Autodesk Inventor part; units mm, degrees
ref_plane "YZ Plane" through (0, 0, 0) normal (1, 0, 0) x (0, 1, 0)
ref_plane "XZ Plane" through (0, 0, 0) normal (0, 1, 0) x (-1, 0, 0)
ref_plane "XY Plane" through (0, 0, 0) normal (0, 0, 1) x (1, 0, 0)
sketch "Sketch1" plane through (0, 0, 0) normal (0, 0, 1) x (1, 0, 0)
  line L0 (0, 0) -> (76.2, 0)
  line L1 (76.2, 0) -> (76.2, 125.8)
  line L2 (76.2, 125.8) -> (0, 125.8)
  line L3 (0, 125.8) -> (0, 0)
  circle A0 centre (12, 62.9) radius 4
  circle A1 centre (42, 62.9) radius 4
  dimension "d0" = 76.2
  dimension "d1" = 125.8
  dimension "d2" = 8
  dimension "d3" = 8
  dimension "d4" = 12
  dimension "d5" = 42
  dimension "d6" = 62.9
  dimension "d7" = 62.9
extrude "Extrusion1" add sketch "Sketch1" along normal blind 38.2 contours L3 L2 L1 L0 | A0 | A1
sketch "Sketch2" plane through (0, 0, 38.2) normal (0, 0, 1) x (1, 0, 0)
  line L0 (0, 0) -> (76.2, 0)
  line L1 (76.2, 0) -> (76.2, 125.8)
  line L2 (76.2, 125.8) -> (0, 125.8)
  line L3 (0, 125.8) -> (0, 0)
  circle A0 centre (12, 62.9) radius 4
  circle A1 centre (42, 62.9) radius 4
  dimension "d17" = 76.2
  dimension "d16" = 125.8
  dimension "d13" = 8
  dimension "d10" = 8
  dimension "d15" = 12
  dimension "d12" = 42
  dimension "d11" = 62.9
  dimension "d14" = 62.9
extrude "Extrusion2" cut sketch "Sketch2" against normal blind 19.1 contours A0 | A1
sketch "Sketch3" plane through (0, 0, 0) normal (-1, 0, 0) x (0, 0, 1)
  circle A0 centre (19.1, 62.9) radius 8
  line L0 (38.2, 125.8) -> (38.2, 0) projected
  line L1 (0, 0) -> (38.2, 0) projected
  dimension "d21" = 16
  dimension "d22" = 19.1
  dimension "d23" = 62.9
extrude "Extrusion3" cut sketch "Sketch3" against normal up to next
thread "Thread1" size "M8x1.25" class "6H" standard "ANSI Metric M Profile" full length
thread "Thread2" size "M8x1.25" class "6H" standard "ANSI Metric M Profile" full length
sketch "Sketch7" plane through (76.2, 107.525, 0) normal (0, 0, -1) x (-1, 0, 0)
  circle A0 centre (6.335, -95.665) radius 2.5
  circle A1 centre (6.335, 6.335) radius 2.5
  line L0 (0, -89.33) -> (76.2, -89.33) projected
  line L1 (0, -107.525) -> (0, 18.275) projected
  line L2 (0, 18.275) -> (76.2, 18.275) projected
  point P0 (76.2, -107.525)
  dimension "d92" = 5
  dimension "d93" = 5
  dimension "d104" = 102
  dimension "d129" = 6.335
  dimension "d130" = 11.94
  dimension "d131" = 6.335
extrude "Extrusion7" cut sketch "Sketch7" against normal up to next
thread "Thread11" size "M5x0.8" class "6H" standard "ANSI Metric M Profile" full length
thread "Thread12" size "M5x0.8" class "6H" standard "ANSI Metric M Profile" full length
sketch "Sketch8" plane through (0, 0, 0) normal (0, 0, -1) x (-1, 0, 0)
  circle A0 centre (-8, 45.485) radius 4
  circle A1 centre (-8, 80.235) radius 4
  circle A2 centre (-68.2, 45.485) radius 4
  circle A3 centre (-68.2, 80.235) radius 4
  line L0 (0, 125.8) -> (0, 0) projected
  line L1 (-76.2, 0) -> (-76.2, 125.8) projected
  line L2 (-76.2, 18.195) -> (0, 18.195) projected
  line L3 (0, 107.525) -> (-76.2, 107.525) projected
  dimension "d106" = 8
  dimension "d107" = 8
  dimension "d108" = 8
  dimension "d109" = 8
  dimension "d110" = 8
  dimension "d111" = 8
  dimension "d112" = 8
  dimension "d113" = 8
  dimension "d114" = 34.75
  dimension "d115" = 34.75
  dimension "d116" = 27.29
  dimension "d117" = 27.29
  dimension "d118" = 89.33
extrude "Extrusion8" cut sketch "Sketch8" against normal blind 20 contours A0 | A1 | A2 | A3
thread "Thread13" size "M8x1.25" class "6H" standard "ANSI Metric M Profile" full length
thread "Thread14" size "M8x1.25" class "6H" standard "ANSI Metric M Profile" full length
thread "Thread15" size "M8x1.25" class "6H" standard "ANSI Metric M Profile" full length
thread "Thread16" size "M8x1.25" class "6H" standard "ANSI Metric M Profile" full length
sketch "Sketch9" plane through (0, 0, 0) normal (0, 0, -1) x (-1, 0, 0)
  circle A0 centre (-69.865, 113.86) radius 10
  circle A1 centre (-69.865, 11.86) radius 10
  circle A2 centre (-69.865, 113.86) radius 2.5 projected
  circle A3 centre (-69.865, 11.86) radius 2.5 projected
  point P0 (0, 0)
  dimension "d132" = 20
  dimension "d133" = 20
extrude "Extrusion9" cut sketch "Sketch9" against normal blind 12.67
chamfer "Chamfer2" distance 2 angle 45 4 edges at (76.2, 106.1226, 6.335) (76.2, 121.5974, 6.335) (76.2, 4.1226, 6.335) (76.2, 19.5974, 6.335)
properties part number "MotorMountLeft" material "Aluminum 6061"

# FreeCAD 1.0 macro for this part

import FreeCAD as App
import Part
import Sketcher

V = App.Vector
Q = App.Units.Quantity


def edges_at(feature, points):
    """Names of the edges that pass closest to the given points."""
    edges = feature.Shape.Edges
    near = lambda p: min(range(len(edges)), key=lambda i: edges[i].distToShape(Part.Vertex(*p))[0])
    return sorted({f"Edge{near(p) + 1}" for p in points})


def add_polygon(sketch, points):
    """Adds a closed chain of lines whose ends are joined by coincident constraints."""
    first, n = sketch.GeometryCount, len(points)
    for a, b in zip(points, points[1:] + points[:1]):
        sketch.addGeometry(Part.LineSegment(App.Vector(*a, 0), App.Vector(*b, 0)), False)
    for i in range(n):
        sketch.addConstraint(Sketcher.Constraint("Coincident", first + i, 2, first + (i + 1) % n, 1))

doc = App.newDocument("Part")
body = doc.addObject("PartDesign::Body", "Body")

# Sketch on XY plane
sketch1 = body.newObject("Sketcher::SketchObject", "Sketch")
sketch1.AttachmentSupport = (doc.getObject("XY_Plane"), [""])
sketch1.MapMode = "FlatFace"
add_polygon(sketch1, [(0, 126), (0, 0), (76, 0), (76, 126)])  # lines 0-3
sketch1.addConstraint(Sketcher.Constraint("Vertical", 0))
sketch1.addConstraint(Sketcher.Constraint("Horizontal", 1))
sketch1.addConstraint(Sketcher.Constraint("Vertical", 2))
sketch1.addConstraint(Sketcher.Constraint("Horizontal", 3))
sketch1.addConstraint(Sketcher.Constraint("Coincident", 0, 2, -1, 1))
sketch1.addConstraint(Sketcher.Constraint("DistanceX", 1, 1, 1, 2, Q("76.2 mm")))
sketch1.addConstraint(Sketcher.Constraint("DistanceY", 0, 2, 0, 1, Q("125.8 mm")))
pad1 = body.newObject("PartDesign::Pad", "Pad")
pad1.Profile = sketch1
pad1.Length = 38.2

# Sketch on XY plane
sketch2 = body.newObject("Sketcher::SketchObject", "Sketch001")
sketch2.AttachmentSupport = (doc.getObject("XY_Plane"), [""])
sketch2.MapMode = "FlatFace"
sketch2.AttachmentOffset = App.Placement(V(0, 0, 38.2), App.Rotation())
sketch2.addGeometry(Part.Circle(V(12, 62.9, 0), V(0, 0, 1), 4), False)
sketch2.addGeometry(Part.Circle(V(42, 62.9, 0), V(0, 0, 1), 4), False)
sketch2.addConstraint(Sketcher.Constraint("Equal", 0, 1))
sketch2.addConstraint(Sketcher.Constraint("Horizontal", 0, 3, 1, 3))
sketch2.addConstraint(Sketcher.Constraint("Diameter", 0, Q("8 mm")))
sketch2.addConstraint(Sketcher.Constraint("DistanceX", -1, 1, 0, 3, Q("12 mm")))
sketch2.addConstraint(Sketcher.Constraint("DistanceX", -1, 1, 1, 3, Q("42 mm")))
sketch2.addConstraint(Sketcher.Constraint("DistanceY", -1, 1, 0, 3, Q("62.9 mm")))
pocket1 = body.newObject("PartDesign::Pocket", "Pocket")
pocket1.Profile = sketch2
pocket1.Length = 19.1

# Sketch on YZ plane
sketch3 = body.newObject("Sketcher::SketchObject", "Sketch002")
sketch3.AttachmentSupport = (doc.getObject("YZ_Plane"), [""])
sketch3.MapMode = "FlatFace"
sketch3.addGeometry(Part.Circle(V(63, 19, 0), V(0, 0, 1), 8), False)
sketch3.addConstraint(Sketcher.Constraint("Diameter", 0, Q("16 mm")))
sketch3.addConstraint(Sketcher.Constraint("DistanceX", -1, 1, 0, 3, Q("62.9 mm")))
sketch3.addConstraint(Sketcher.Constraint("DistanceY", -1, 1, 0, 3, Q("19.1 mm")))
pocket2 = body.newObject("PartDesign::Pocket", "Pocket001")
pocket2.Profile = sketch3
pocket2.Type = "UpToFirst"
pocket2.Reversed = True

# Sketch on XY plane
sketch4 = body.newObject("Sketcher::SketchObject", "Sketch003")
sketch4.AttachmentSupport = (doc.getObject("XY_Plane"), [""])
sketch4.MapMode = "FlatFace"
sketch4.addGeometry(Part.Circle(V(69.9, 11.9, 0), V(0, 0, 1), 2.5), False)
sketch4.addGeometry(Part.Circle(V(69.9, 113.9, 0), V(0, 0, 1), 2.5), False)
sketch4.addConstraint(Sketcher.Constraint("Equal", 0, 1))
sketch4.addConstraint(Sketcher.Constraint("Vertical", 0, 3, 1, 3))
sketch4.addConstraint(Sketcher.Constraint("Diameter", 0, Q("5 mm")))
sketch4.addConstraint(Sketcher.Constraint("DistanceY", 0, 3, 1, 3, Q("102 mm")))
sketch4.addConstraint(Sketcher.Constraint("DistanceY", -1, 1, 0, 3, Q("11.86 mm")))
sketch4.addConstraint(Sketcher.Constraint("DistanceX", -1, 1, 0, 3, Q("69.865 mm")))
pocket3 = body.newObject("PartDesign::Pocket", "Pocket002")
pocket3.Profile = sketch4
pocket3.Length = 38.2
pocket3.Reversed = True

# Sketch on XY plane
sketch5 = body.newObject("Sketcher::SketchObject", "Sketch004")
sketch5.AttachmentSupport = (doc.getObject("XY_Plane"), [""])
sketch5.MapMode = "FlatFace"
sketch5.addGeometry(Part.Circle(V(8, 45.5, 0), V(0, 0, 1), 4), False)
sketch5.addGeometry(Part.Circle(V(8, 80.2, 0), V(0, 0, 1), 4), False)
sketch5.addGeometry(Part.Circle(V(68.2, 45.5, 0), V(0, 0, 1), 4), False)
sketch5.addGeometry(Part.Circle(V(68.2, 80.2, 0), V(0, 0, 1), 4), False)
sketch5.addConstraint(Sketcher.Constraint("Equal", 0, 1))
sketch5.addConstraint(Sketcher.Constraint("Equal", 1, 2))
sketch5.addConstraint(Sketcher.Constraint("Equal", 2, 3))
sketch5.addConstraint(Sketcher.Constraint("Horizontal", 0, 3, 2, 3))
sketch5.addConstraint(Sketcher.Constraint("Horizontal", 1, 3, 3, 3))
sketch5.addConstraint(Sketcher.Constraint("Vertical", 0, 3, 1, 3))
sketch5.addConstraint(Sketcher.Constraint("Vertical", 2, 3, 3, 3))
sketch5.addConstraint(Sketcher.Constraint("Diameter", 0, Q("8 mm")))
sketch5.addConstraint(Sketcher.Constraint("DistanceX", -1, 1, 0, 3, Q("8 mm")))
sketch5.addConstraint(Sketcher.Constraint("DistanceY", 0, 3, 1, 3, Q("34.75 mm")))
sketch5.addConstraint(Sketcher.Constraint("DistanceX", -1, 1, 2, 3, Q("68.2 mm")))
sketch5.addConstraint(Sketcher.Constraint("DistanceY", -1, 1, 0, 3, Q("45.485 mm")))
pocket4 = body.newObject("PartDesign::Pocket", "Pocket003")
pocket4.Profile = sketch5
pocket4.Length = 20
pocket4.Reversed = True

# Sketch on XY plane
sketch6 = body.newObject("Sketcher::SketchObject", "Sketch005")
sketch6.AttachmentSupport = (doc.getObject("XY_Plane"), [""])
sketch6.MapMode = "FlatFace"
sketch6.addGeometry(Part.Circle(V(69.9, 113.9, 0), V(0, 0, 1), 10), False)
sketch6.addGeometry(Part.Circle(V(69.9, 113.9, 0), V(0, 0, 1), 2.5), False)
sketch6.addGeometry(Part.Circle(V(69.9, 11.9, 0), V(0, 0, 1), 10), False)
sketch6.addGeometry(Part.Circle(V(69.9, 11.9, 0), V(0, 0, 1), 2.5), False)
sketch6.addConstraint(Sketcher.Constraint("Coincident", 1, 3, 0, 3))
sketch6.addConstraint(Sketcher.Constraint("Coincident", 3, 3, 2, 3))
sketch6.addConstraint(Sketcher.Constraint("Equal", 0, 2))
sketch6.addConstraint(Sketcher.Constraint("Equal", 1, 3))
sketch6.addConstraint(Sketcher.Constraint("Vertical", 1, 3, 2, 3))
sketch6.addConstraint(Sketcher.Constraint("Diameter", 0, Q("20 mm")))
sketch6.addConstraint(Sketcher.Constraint("Diameter", 1, Q("5 mm")))
sketch6.addConstraint(Sketcher.Constraint("DistanceY", 2, 3, 0, 3, Q("102 mm")))
sketch6.addConstraint(Sketcher.Constraint("DistanceY", -1, 1, 0, 3, Q("113.86 mm")))
sketch6.addConstraint(Sketcher.Constraint("DistanceX", -1, 1, 0, 3, Q("69.865 mm")))
pocket5 = body.newObject("PartDesign::Pocket", "Pocket004")
pocket5.Profile = sketch6
pocket5.Length = 12.67
pocket5.Reversed = True
doc.recompute()

chamfer = body.newObject("PartDesign::Chamfer", "Chamfer")
chamfer.Base = (pocket5, edges_at(pocket5, [
    (76.2, 106.123, 6.335),
    (76.2, 121.597, 6.335),
    (76.2, 4.123, 6.335),
    (76.2, 19.597, 6.335),
]))
chamfer.Size = 2

doc.recompute()
